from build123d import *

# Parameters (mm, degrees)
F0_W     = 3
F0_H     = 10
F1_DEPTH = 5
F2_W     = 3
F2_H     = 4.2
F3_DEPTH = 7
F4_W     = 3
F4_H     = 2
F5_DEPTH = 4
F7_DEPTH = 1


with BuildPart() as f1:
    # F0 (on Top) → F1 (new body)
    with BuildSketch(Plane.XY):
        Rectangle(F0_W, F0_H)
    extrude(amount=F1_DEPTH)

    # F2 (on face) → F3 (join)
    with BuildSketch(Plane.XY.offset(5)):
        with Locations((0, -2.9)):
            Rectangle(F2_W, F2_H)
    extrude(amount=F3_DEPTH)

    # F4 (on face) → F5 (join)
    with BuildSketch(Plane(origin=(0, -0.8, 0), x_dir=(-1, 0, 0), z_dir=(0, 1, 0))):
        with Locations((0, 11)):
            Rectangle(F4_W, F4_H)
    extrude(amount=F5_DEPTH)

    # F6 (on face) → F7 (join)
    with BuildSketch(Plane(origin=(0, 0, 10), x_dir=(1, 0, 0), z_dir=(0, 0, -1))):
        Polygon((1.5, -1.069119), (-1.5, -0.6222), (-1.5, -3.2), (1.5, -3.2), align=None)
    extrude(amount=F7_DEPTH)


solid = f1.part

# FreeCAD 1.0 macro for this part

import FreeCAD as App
import Part
import Sketcher
Q = App.Units.Quantity

doc = App.newDocument("Part")
body = doc.addObject("PartDesign::Body", "Body")

sketch1 = body.newObject("Sketcher::SketchObject", "Sketch")
sketch1.AttachmentSupport = (doc.getObject("XY_Plane"), [""])
sketch1.MapMode = "FlatFace"
sketch1.addGeometry(Part.LineSegment(App.Vector(-1.5, 5, 0), App.Vector(-1.5, -5, 0)), False)
sketch1.addGeometry(Part.LineSegment(App.Vector(-1.5, -5, 0), App.Vector(1.5, -5, 0)), False)
sketch1.addGeometry(Part.LineSegment(App.Vector(1.5, -5, 0), App.Vector(1.5, 5, 0)), False)
sketch1.addGeometry(Part.LineSegment(App.Vector(1.5, 5, 0), App.Vector(-1.5, 5, 0)), False)
sketch1.addConstraint(Sketcher.Constraint("Coincident", 0, 2, 1, 1))
sketch1.addConstraint(Sketcher.Constraint("Coincident", 1, 2, 2, 1))
sketch1.addConstraint(Sketcher.Constraint("Coincident", 2, 2, 3, 1))
sketch1.addConstraint(Sketcher.Constraint("Coincident", 3, 2, 0, 1))
sketch1.addConstraint(Sketcher.Constraint("Vertical", 0))
sketch1.addConstraint(Sketcher.Constraint("Horizontal", 1))
sketch1.addConstraint(Sketcher.Constraint("Vertical", 2))
sketch1.addConstraint(Sketcher.Constraint("Horizontal", 3))
sketch1.addConstraint(Sketcher.Constraint("Symmetric", 0, 2, 2, 2, -1, 1))
sketch1.addConstraint(Sketcher.Constraint("DistanceX", 1, 1, 1, 2, Q("3 mm")))
sketch1.addConstraint(Sketcher.Constraint("DistanceY", 0, 2, 0, 1, Q("10 mm")))
pad1 = body.newObject("PartDesign::Pad", "Pad")
pad1.Profile = sketch1
pad1.Length = 5

sketch2 = body.newObject("Sketcher::SketchObject", "Sketch001")
sketch2.AttachmentSupport = (doc.getObject("XY_Plane"), [""])
sketch2.MapMode = "FlatFace"
sketch2.AttachmentOffset = App.Placement(App.Vector(0, 0, 5), App.Rotation())
sketch2.addGeometry(Part.LineSegment(App.Vector(-1.5, -0.8, 0), App.Vector(-1.5, -5, 0)), False)
sketch2.addGeometry(Part.LineSegment(App.Vector(-1.5, -5, 0), App.Vector(1.5, -5, 0)), False)
sketch2.addGeometry(Part.LineSegment(App.Vector(1.5, -5, 0), App.Vector(1.5, -0.8, 0)), False)
sketch2.addGeometry(Part.LineSegment(App.Vector(1.5, -0.8, 0), App.Vector(-1.5, -0.8, 0)), False)
sketch2.addConstraint(Sketcher.Constraint("Coincident", 0, 2, 1, 1))
sketch2.addConstraint(Sketcher.Constraint("Coincident", 1, 2, 2, 1))
sketch2.addConstraint(Sketcher.Constraint("Coincident", 2, 2, 3, 1))
sketch2.addConstraint(Sketcher.Constraint("Coincident", 3, 2, 0, 1))
sketch2.addConstraint(Sketcher.Constraint("Vertical", 0))
sketch2.addConstraint(Sketcher.Constraint("Horizontal", 1))
sketch2.addConstraint(Sketcher.Constraint("Vertical", 2))
sketch2.addConstraint(Sketcher.Constraint("Horizontal", 3))
sketch2.addConstraint(Sketcher.Constraint("DistanceX", 1, 1, 1, 2, Q("3 mm")))
sketch2.addConstraint(Sketcher.Constraint("DistanceY", 0, 2, 0, 1, Q("4.2 mm")))
sketch2.addConstraint(Sketcher.Constraint("DistanceY", 0, 2, -1, 1, Q("5 mm")))
sketch2.addConstraint(Sketcher.Constraint("DistanceX", 0, 2, -1, 1, Q("1.5 mm")))
pad2 = body.newObject("PartDesign::Pad", "Pad001")
pad2.Profile = sketch2
pad2.Length = 7

sketch3 = body.newObject("Sketcher::SketchObject", "Sketch002")
sketch3.AttachmentSupport = (doc.getObject("XZ_Plane"), [""])
sketch3.MapMode = "FlatFace"
sketch3.AttachmentOffset = App.Placement(App.Vector(0, 0, 0.8), App.Rotation())
sketch3.addGeometry(Part.LineSegment(App.Vector(1.5, 12, 0), App.Vector(1.5, 10, 0)), False)
sketch3.addGeometry(Part.LineSegment(App.Vector(1.5, 10, 0), App.Vector(-1.5, 10, 0)), False)
sketch3.addGeometry(Part.LineSegment(App.Vector(-1.5, 10, 0), App.Vector(-1.5, 12, 0)), False)
sketch3.addGeometry(Part.LineSegment(App.Vector(-1.5, 12, 0), App.Vector(1.5, 12, 0)), False)
sketch3.addConstraint(Sketcher.Constraint("Coincident", 0, 2, 1, 1))
sketch3.addConstraint(Sketcher.Constraint("Coincident", 1, 2, 2, 1))
sketch3.addConstraint(Sketcher.Constraint("Coincident", 2, 2, 3, 1))
sketch3.addConstraint(Sketcher.Constraint("Coincident", 3, 2, 0, 1))
sketch3.addConstraint(Sketcher.Constraint("Vertical", 0))
sketch3.addConstraint(Sketcher.Constraint("Horizontal", 1))
sketch3.addConstraint(Sketcher.Constraint("Vertical", 2))
sketch3.addConstraint(Sketcher.Constraint("Horizontal", 3))
sketch3.addConstraint(Sketcher.Constraint("DistanceX", 1, 2, 1, 1, Q("3 mm")))
sketch3.addConstraint(Sketcher.Constraint("DistanceY", 0, 2, 0, 1, Q("2 mm")))
sketch3.addConstraint(Sketcher.Constraint("DistanceY", -1, 1, 0, 2, Q("10 mm")))
sketch3.addConstraint(Sketcher.Constraint("DistanceX", -1, 1, 0, 2, Q("1.5 mm")))
pad3 = body.newObject("PartDesign::Pad", "Pad002")
pad3.Profile = sketch3
pad3.Length = 4
pad3.Reversed = True

sketch4 = body.newObject("Sketcher::SketchObject", "Sketch003")
sketch4.AttachmentSupport = (doc.getObject("XY_Plane"), [""])
sketch4.MapMode = "FlatFace"
sketch4.AttachmentOffset = App.Placement(App.Vector(0, 0, 10), App.Rotation())
sketch4.addGeometry(Part.LineSegment(App.Vector(1.5, 1.1, 0), App.Vector(-1.5, 0.6, 0)), False)
sketch4.addGeometry(Part.LineSegment(App.Vector(-1.5, 0.6, 0), App.Vector(-1.5, 3.2, 0)), False)
sketch4.addGeometry(Part.LineSegment(App.Vector(-1.5, 3.2, 0), App.Vector(1.5, 3.2, 0)), False)
sketch4.addGeometry(Part.LineSegment(App.Vector(1.5, 3.2, 0), App.Vector(1.5, 1.1, 0)), False)
sketch4.addConstraint(Sketcher.Constraint("Coincident", 0, 2, 1, 1))
sketch4.addConstraint(Sketcher.Constraint("Coincident", 1, 2, 2, 1))
sketch4.addConstraint(Sketcher.Constraint("Coincident", 2, 2, 3, 1))
sketch4.addConstraint(Sketcher.Constraint("Coincident", 3, 2, 0, 1))
sketch4.addConstraint(Sketcher.Constraint("Vertical", 1))
sketch4.addConstraint(Sketcher.Constraint("Horizontal", 2))
sketch4.addConstraint(Sketcher.Constraint("Vertical", 3))
sketch4.addConstraint(Sketcher.Constraint("DistanceX", 2, 1, 2, 2, Q("3 mm")))
sketch4.addConstraint(Sketcher.Constraint("DistanceX", 0, 2, -1, 1, Q("1.5 mm")))
sketch4.addConstraint(Sketcher.Constraint("DistanceY", -1, 1, 1, 2, Q("3.2 mm")))
sketch4.addConstraint(Sketcher.Constraint("DistanceY", 1, 1, 1, 2, Q("2.5778 mm")))
sketch4.addConstraint(Sketcher.Constraint("DistanceY", 3, 2, 3, 1, Q("2.130881 mm")))
pad4 = body.newObject("PartDesign::Pad", "Pad003")
pad4.Profile = sketch4
pad4.Length = 1
pad4.Reversed = True

doc.recompute()
